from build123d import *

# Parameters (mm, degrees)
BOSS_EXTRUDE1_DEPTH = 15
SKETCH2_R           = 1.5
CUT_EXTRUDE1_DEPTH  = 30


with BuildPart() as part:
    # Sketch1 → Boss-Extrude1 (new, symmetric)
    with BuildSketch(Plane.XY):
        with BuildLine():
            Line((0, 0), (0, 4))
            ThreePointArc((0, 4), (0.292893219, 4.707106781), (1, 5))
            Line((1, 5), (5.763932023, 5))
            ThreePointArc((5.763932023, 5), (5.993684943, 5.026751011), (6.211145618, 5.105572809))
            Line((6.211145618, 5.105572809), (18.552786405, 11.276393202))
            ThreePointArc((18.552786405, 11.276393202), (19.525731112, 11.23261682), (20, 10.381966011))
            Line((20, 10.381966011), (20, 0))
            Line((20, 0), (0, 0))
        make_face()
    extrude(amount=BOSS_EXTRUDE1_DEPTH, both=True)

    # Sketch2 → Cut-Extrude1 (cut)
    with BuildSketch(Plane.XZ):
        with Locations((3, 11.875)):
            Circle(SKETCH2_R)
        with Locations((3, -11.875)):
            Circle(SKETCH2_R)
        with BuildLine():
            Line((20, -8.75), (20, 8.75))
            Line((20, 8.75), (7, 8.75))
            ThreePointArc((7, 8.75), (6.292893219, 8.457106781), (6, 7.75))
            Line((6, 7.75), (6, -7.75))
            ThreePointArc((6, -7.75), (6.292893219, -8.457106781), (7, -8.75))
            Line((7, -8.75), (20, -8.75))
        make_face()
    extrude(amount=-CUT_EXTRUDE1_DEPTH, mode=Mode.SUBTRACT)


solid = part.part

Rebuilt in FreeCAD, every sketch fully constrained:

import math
import FreeCAD as App
import Part
import Sketcher

doc = App.newDocument("Part")
body = doc.addObject("PartDesign::Body", "Body")

# Sketch on XY plane
sketch1 = body.newObject("Sketcher::SketchObject", "Sketch")
sketch1.AttachmentSupport = (doc.getObject("XY_Plane"), [""])
sketch1.MapMode = "FlatFace"
sketch1.addGeometry([
    Part.LineSegment(App.Vector(0, 4, 0), App.Vector(0, 0, 0)),  # 0
    Part.LineSegment(App.Vector(0, 0, 0), App.Vector(20, 0, 0)),  # 1
    Part.LineSegment(App.Vector(20, 0, 0), App.Vector(20, 10.38, 0)),  # 2
    Part.ArcOfCircle(Part.Circle(App.Vector(19, 10.38, 0), App.Vector(0, 0, 1), 1), math.radians(0), math.radians(117)),  # 3
    Part.LineSegment(App.Vector(18.55, 11.28, 0), App.Vector(6.21, 5.11, 0)),  # 4
    Part.ArcOfCircle(Part.Circle(App.Vector(5.76, 6, 0), App.Vector(0, 0, 1), 1), math.radians(-90), math.radians(-63)),  # 5
    Part.LineSegment(App.Vector(5.76, 5, 0), App.Vector(1, 5, 0)),  # 6
    Part.ArcOfCircle(Part.Circle(App.Vector(1, 4, 0), App.Vector(0, 0, 1), 1), math.radians(90), math.radians(180)),  # 7
], False)
sketch1.addConstraint([
    Sketcher.Constraint("Coincident", 0, 2, 1, 1),
    Sketcher.Constraint("Coincident", 1, 2, 2, 1),
    Sketcher.Constraint("Tangent", 2, 2, 3, 1),
    Sketcher.Constraint("Tangent", 3, 2, 4, 1),
    Sketcher.Constraint("Tangent", 4, 2, 5, 2),
    Sketcher.Constraint("Tangent", 5, 1, 6, 1),
    Sketcher.Constraint("Tangent", 6, 2, 7, 1),
    Sketcher.Constraint("Tangent", 7, 2, 0, 1),
    Sketcher.Constraint("Vertical", 0),
    Sketcher.Constraint("Horizontal", 1),
    Sketcher.Constraint("Vertical", 2),
    Sketcher.Constraint("Horizontal", 6),
    Sketcher.Constraint("Coincident", 0, 2, -1, 1),
    Sketcher.Constraint("Equal", 3, 5),
    Sketcher.Constraint("Equal", 5, 7),
    Sketcher.Constraint("Radius", 3, 1.0),
    Sketcher.Constraint("DistanceX", 1, 1, 1, 2, 20.0),
    Sketcher.Constraint("DistanceY", 0, 2, 0, 1, 4.0),
    Sketcher.Constraint("DistanceX", 6, 2, 6, 1, 4.763932),
    Sketcher.Constraint("DistanceY", 2, 1, 2, 2, 10.381966),
])
pad1 = body.newObject("PartDesign::Pad", "Pad")
pad1.Profile = sketch1
pad1.Length = 30
pad1.Midplane = True

# Sketch on XZ plane
sketch2 = body.newObject("Sketcher::SketchObject", "Sketch001")
sketch2.AttachmentSupport = (doc.getObject("XZ_Plane"), [""])
sketch2.MapMode = "FlatFace"
sketch2.addGeometry([
    Part.Circle(App.Vector(3, 11.9, 0), App.Vector(0, 0, 1), 1.5),  # 0
    Part.Circle(App.Vector(3, -11.9, 0), App.Vector(0, 0, 1), 1.5),  # 1
    Part.LineSegment(App.Vector(20, -8.8, 0), App.Vector(20, 8.8, 0)),  # 2
    Part.LineSegment(App.Vector(20, 8.8, 0), App.Vector(7, 8.8, 0)),  # 3
    Part.ArcOfCircle(Part.Circle(App.Vector(7, 7.7, 0), App.Vector(0, 0, 1), 1), math.radians(90), math.radians(180)),  # 4
    Part.LineSegment(App.Vector(6, 7.8, 0), App.Vector(6, -7.8, 0)),  # 5
    Part.ArcOfCircle(Part.Circle(App.Vector(7, -7.7, 0), App.Vector(0, 0, 1), 1), math.radians(-180), math.radians(-90)),  # 6
    Part.LineSegment(App.Vector(7, -8.8, 0), App.Vector(20, -8.8, 0)),  # 7
], False)
sketch2.addConstraint([
    Sketcher.Constraint("Coincident", 2, 2, 3, 1),
    Sketcher.Constraint("Tangent", 3, 2, 4, 1),
    Sketcher.Constraint("Tangent", 4, 2, 5, 1),
    Sketcher.Constraint("Tangent", 5, 2, 6, 1),
    Sketcher.Constraint("Tangent", 6, 2, 7, 1),
    Sketcher.Constraint("Coincident", 7, 2, 2, 1),
    Sketcher.Constraint("Vertical", 2),
    Sketcher.Constraint("Horizontal", 3),
    Sketcher.Constraint("Vertical", 5),
    Sketcher.Constraint("Horizontal", 7),
    Sketcher.Constraint("Equal", 0, 1),
    Sketcher.Constraint("Equal", 4, 6),
    Sketcher.Constraint("Symmetric", 0, 3, 1, 3, -1),
    Sketcher.Constraint("Diameter", 0, 3.0),
    Sketcher.Constraint("Radius", 4, 1.0),
    Sketcher.Constraint("DistanceX", 3, 2, 3, 1, 13.0),
    Sketcher.Constraint("DistanceY", 2, 1, 2, 2, 17.5),
    Sketcher.Constraint("DistanceX", -1, 1, 0, 3, 3.0),
    Sketcher.Constraint("DistanceX", -1, 1, 4, 3, 7.0),
    Sketcher.Constraint("DistanceY", -1, 1, 4, 3, 7.75),
    Sketcher.Constraint("DistanceY", 1, 3, 0, 3, 23.75),
])
pocket1 = body.newObject("PartDesign::Pocket", "Pocket")
pocket1.Profile = sketch2
pocket1.Length = 30

doc.recompute()
